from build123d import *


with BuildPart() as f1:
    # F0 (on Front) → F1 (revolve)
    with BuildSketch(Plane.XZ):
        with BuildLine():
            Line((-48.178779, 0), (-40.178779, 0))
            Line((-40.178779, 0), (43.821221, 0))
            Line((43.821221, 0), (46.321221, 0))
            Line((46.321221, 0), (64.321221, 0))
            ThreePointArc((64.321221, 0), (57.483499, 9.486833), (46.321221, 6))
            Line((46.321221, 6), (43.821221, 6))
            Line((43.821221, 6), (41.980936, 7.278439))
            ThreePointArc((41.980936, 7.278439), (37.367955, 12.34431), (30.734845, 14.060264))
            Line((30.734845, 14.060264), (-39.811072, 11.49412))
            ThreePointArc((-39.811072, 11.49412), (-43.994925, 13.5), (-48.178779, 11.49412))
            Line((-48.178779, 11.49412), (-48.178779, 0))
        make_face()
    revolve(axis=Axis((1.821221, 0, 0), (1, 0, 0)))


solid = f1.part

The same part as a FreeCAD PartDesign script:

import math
import FreeCAD as App
import Part
import Sketcher
Q = App.Units.Quantity

doc = App.newDocument("Part")
body = doc.addObject("PartDesign::Body", "Body")

# Sketch on XZ plane
sketch1 = body.newObject("Sketcher::SketchObject", "Sketch")
sketch1.AttachmentSupport = (doc.getObject("XZ_Plane"), [""])
sketch1.MapMode = "FlatFace"
sketch1.addGeometry([
    Part.LineSegment(App.Vector(-48.2, 0, 0), App.Vector(64.3, 0, 0)),  # 0
    Part.ArcOfCircle(Part.Circle(App.Vector(54.3, 0, 0), App.Vector(0, 0, 1), 10), math.radians(0), math.radians(143)),  # 1
    Part.LineSegment(App.Vector(46.3, 6, 0), App.Vector(43.8, 6, 0)),  # 2
    Part.LineSegment(App.Vector(43.8, 6, 0), App.Vector(42, 7.3, 0)),  # 3
    Part.ArcOfCircle(Part.Circle(App.Vector(31.2, 2.1, 0), App.Vector(0, 0, 1), 12), math.radians(26), math.radians(92)),  # 4
    Part.LineSegment(App.Vector(30.7, 14.1, 0), App.Vector(-39.8, 11.5, 0)),  # 5
    Part.ArcOfCircle(Part.Circle(App.Vector(-44, 8.1, 0), App.Vector(0, 0, 1), 5.4), math.radians(39), math.radians(141)),  # 6
    Part.LineSegment(App.Vector(-48.2, 11.5, 0), App.Vector(-48.2, 0, 0)),  # 7
], False)
sketch1.addConstraint([
    Sketcher.Constraint("Coincident", 0, 2, 1, 1),
    Sketcher.Constraint("Coincident", 1, 2, 2, 1),
    Sketcher.Constraint("Coincident", 2, 2, 3, 1),
    Sketcher.Constraint("Coincident", 3, 2, 4, 1),
    Sketcher.Constraint("Tangent", 4, 2, 5, 1),
    Sketcher.Constraint("Coincident", 5, 2, 6, 1),
    Sketcher.Constraint("Coincident", 6, 2, 7, 1),
    Sketcher.Constraint("Coincident", 7, 2, 0, 1),
    Sketcher.Constraint("Horizontal", 0),
    Sketcher.Constraint("Horizontal", 2),
    Sketcher.Constraint("Vertical", 7),
    Sketcher.Constraint("PointOnObject", 1, 3, -1),
    Sketcher.Constraint("PointOnObject", 0, 2, -1),
    Sketcher.Constraint("Horizontal", 5, 2, 6, 2),
    Sketcher.Constraint("Radius", 1, Q("10 mm")),
    Sketcher.Constraint("Radius", 4, Q("11.999998 mm")),
    Sketcher.Constraint("DistanceX", 0, 1, 0, 2, Q("112.5 mm")),
    Sketcher.Constraint("DistanceX", 2, 2, 2, 1, Q("2.5 mm")),
    Sketcher.Constraint("DistanceY", -1, 1, 1, 2, Q("6 mm")),
    Sketcher.Constraint("Radius", 6, Q("5.366269 mm")),
    Sketcher.Constraint("DistanceY", 7, 2, 7, 1, Q("11.49412 mm")),
    Sketcher.Constraint("Distance", 3, Q("2.240771 mm")),
    Sketcher.Constraint("DistanceX", -1, 1, 1, 3, Q("54.321221 mm")),
    Sketcher.Constraint("DistanceY", -1, 1, 6, 3, Q("8.133731 mm")),
    Sketcher.Constraint("DistanceY", -1, 1, 3, 2, Q("7.278439 mm")),
    Sketcher.Constraint("DistanceX", 6, 3, 4, 3, Q("75.165989 mm")),
])
revolution = body.newObject("PartDesign::Revolution", "Revolution")
revolution.Profile = sketch1
revolution.ReferenceAxis = (sketch1, ["H_Axis"])
revolution.Angle = 360

doc.recompute()
